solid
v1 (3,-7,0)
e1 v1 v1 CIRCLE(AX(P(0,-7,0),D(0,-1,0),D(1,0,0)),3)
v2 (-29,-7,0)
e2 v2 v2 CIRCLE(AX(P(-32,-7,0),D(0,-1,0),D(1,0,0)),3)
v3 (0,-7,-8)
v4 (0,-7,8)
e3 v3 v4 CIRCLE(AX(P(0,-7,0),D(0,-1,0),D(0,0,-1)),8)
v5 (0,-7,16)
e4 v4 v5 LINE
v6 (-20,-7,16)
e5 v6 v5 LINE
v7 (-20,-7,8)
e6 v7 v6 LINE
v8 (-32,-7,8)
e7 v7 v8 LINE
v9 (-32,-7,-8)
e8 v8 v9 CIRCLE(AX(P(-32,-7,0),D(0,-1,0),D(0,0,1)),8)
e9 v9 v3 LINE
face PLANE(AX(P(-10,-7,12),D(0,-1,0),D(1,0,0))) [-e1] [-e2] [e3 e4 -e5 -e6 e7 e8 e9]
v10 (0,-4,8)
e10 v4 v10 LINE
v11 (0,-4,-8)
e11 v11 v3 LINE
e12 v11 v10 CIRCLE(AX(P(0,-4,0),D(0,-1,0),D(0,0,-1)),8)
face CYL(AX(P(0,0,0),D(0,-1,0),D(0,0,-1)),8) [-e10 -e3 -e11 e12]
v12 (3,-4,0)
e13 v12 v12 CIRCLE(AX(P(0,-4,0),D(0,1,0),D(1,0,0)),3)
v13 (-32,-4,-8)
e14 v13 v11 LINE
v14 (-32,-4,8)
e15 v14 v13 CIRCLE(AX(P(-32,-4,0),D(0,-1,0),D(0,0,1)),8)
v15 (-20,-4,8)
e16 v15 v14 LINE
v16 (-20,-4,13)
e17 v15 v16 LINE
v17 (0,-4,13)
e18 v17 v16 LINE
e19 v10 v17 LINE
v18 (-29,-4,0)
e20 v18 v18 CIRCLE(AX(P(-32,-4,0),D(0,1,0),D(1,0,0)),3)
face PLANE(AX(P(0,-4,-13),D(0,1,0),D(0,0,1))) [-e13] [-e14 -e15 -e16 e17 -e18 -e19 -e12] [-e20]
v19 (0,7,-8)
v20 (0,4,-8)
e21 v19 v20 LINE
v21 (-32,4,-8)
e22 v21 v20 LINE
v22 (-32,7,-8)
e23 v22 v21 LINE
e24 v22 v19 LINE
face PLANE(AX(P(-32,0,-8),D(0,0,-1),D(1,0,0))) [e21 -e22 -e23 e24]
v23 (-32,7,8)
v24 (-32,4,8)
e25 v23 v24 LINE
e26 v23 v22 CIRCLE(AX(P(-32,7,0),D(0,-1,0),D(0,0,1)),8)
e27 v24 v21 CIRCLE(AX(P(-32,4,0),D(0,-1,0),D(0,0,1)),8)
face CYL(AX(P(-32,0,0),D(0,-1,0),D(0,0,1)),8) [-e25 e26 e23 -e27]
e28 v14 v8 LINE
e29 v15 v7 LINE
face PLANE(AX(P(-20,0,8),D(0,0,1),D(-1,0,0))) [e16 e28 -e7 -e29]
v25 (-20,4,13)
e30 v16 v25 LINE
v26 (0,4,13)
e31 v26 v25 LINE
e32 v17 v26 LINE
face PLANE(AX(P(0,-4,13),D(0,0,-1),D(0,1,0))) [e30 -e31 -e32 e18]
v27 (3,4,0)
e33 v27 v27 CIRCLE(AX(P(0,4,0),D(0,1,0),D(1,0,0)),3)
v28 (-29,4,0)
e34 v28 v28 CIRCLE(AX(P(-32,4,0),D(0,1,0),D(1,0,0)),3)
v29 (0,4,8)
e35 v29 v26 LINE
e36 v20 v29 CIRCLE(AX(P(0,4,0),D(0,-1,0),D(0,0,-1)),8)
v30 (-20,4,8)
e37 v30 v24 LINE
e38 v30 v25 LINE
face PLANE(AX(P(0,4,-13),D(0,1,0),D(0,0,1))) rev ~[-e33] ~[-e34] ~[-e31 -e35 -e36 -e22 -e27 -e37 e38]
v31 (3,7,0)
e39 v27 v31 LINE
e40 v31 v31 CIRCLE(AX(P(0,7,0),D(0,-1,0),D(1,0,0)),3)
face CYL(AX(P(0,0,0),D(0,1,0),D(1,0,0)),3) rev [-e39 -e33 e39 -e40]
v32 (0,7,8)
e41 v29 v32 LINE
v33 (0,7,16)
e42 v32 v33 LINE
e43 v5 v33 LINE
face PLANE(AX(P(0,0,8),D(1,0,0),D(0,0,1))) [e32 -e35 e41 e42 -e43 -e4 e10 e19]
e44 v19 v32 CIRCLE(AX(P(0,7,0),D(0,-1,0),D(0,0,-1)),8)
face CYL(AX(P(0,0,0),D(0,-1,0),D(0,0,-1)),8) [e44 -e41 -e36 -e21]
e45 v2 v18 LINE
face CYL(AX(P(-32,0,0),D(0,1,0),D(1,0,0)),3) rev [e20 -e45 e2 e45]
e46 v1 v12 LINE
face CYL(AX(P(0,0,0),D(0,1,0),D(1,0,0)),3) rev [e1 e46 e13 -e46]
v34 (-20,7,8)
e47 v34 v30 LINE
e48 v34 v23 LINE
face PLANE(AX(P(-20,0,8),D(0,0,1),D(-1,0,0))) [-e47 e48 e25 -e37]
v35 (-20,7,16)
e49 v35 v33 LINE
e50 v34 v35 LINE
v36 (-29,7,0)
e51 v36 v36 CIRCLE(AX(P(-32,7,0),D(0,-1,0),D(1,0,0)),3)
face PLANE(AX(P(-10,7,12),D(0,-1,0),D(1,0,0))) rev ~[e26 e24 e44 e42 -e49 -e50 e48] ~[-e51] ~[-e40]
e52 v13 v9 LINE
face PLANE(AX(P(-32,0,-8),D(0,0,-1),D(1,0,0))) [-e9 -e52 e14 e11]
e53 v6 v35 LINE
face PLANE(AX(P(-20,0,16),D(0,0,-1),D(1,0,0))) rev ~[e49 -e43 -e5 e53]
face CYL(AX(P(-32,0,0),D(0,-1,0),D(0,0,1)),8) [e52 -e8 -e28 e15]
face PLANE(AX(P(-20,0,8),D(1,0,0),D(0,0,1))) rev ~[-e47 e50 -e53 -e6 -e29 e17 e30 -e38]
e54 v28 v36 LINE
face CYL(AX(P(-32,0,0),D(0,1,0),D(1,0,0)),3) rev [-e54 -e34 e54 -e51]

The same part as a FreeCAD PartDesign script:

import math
import FreeCAD as App
import Part
import Sketcher

V = App.Vector
Q = App.Units.Quantity

doc = App.newDocument("Part")
body = doc.addObject("PartDesign::Body", "Body")

sketch1 = body.newObject("Sketcher::SketchObject", "Sketch")
sketch1.AttachmentSupport = (doc.getObject("XZ_Plane"), [""])
sketch1.MapMode = "FlatFace"
sketch1.addGeometry(Part.LineSegment(V(-20, 16, 0), V(-20, 8, 0)), False)
sketch1.addGeometry(Part.LineSegment(V(-20, 8, 0), V(-32, 8, 0)), False)
sketch1.addGeometry(Part.ArcOfCircle(Part.Circle(V(-32, 0, 0), V(0, 0, 1), 8), math.radians(90), math.radians(270)), False)
sketch1.addGeometry(Part.LineSegment(V(-32, -8, 0), V(0, -8, 0)), False)
sketch1.addGeometry(Part.ArcOfCircle(Part.Circle(V(0, 0, 0), V(0, 0, 1), 8), math.radians(-90), math.radians(90)), False)
sketch1.addGeometry(Part.LineSegment(V(0, 8, 0), V(0, 16, 0)), False)
sketch1.addGeometry(Part.LineSegment(V(0, 16, 0), V(-20, 16, 0)), False)
sketch1.addGeometry(Part.Circle(V(-32, 0, 0), V(0, 0, 1), 3), False)
sketch1.addGeometry(Part.Circle(V(0, 0, 0), V(0, 0, 1), 3), False)
sketch1.addConstraint(Sketcher.Constraint("Coincident", 0, 2, 1, 1))
sketch1.addConstraint(Sketcher.Constraint("Tangent", 1, 2, 2, 1))
sketch1.addConstraint(Sketcher.Constraint("Tangent", 2, 2, 3, 1))
sketch1.addConstraint(Sketcher.Constraint("Tangent", 3, 2, 4, 1))
sketch1.addConstraint(Sketcher.Constraint("Coincident", 4, 2, 5, 1))
sketch1.addConstraint(Sketcher.Constraint("Coincident", 5, 2, 6, 1))
sketch1.addConstraint(Sketcher.Constraint("Coincident", 6, 2, 0, 1))
sketch1.addConstraint(Sketcher.Constraint("Vertical", 0))
sketch1.addConstraint(Sketcher.Constraint("Horizontal", 1))
sketch1.addConstraint(Sketcher.Constraint("Horizontal", 3))
sketch1.addConstraint(Sketcher.Constraint("Vertical", 5))
sketch1.addConstraint(Sketcher.Constraint("Horizontal", 6))
sketch1.addConstraint(Sketcher.Constraint("Coincident", 4, 3, -1, 1))
sketch1.addConstraint(Sketcher.Constraint("Coincident", 8, 3, -1, 1))
sketch1.addConstraint(Sketcher.Constraint("Coincident", 7, 3, 2, 3))
sketch1.addConstraint(Sketcher.Constraint("Equal", 2, 4))
sketch1.addConstraint(Sketcher.Constraint("Equal", 7, 8))
sketch1.addConstraint(Sketcher.Constraint("PointOnObject", 4, 2, -2))
sketch1.addConstraint(Sketcher.Constraint("Diameter", 7, Q("6 mm")))
sketch1.addConstraint(Sketcher.Constraint("Radius", 2, Q("8 mm")))
sketch1.addConstraint(Sketcher.Constraint("DistanceX", 1, 2, 1, 1, Q("12 mm")))
sketch1.addConstraint(Sketcher.Constraint("DistanceX", 3, 1, 3, 2, Q("32 mm")))
sketch1.addConstraint(Sketcher.Constraint("DistanceY", 0, 2, 0, 1, Q("8 mm")))
pad1 = body.newObject("PartDesign::Pad", "Pad")
pad1.Profile = sketch1
pad1.Length = 14
pad1.Midplane = True

sketch2 = body.newObject("Sketcher::SketchObject", "Sketch001")
sketch2.AttachmentSupport = (doc.getObject("YZ_Plane"), [""])
sketch2.MapMode = "FlatFace"
sketch2.addGeometry(Part.LineSegment(V(-4, 13, 0), V(-4, -13, 0)), False)
sketch2.addGeometry(Part.LineSegment(V(-4, -13, 0), V(4, -13, 0)), False)
sketch2.addGeometry(Part.LineSegment(V(4, -13, 0), V(4, 13, 0)), False)
sketch2.addGeometry(Part.LineSegment(V(4, 13, 0), V(-4, 13, 0)), False)
sketch2.addConstraint(Sketcher.Constraint("Coincident", 0, 2, 1, 1))
sketch2.addConstraint(Sketcher.Constraint("Coincident", 1, 2, 2, 1))
sketch2.addConstraint(Sketcher.Constraint("Coincident", 2, 2, 3, 1))
sketch2.addConstraint(Sketcher.Constraint("Coincident", 3, 2, 0, 1))
sketch2.addConstraint(Sketcher.Constraint("Vertical", 0))
sketch2.addConstraint(Sketcher.Constraint("Horizontal", 1))
sketch2.addConstraint(Sketcher.Constraint("Vertical", 2))
sketch2.addConstraint(Sketcher.Constraint("Horizontal", 3))
sketch2.addConstraint(Sketcher.Constraint("Symmetric", 0, 2, 2, 2, -1, 1))
sketch2.addConstraint(Sketcher.Constraint("DistanceX", 1, 1, 1, 2, Q("8 mm")))
sketch2.addConstraint(Sketcher.Constraint("DistanceY", 0, 2, 0, 1, Q("26 mm")))
pocket1 = body.newObject("PartDesign::Pocket", "Pocket")
pocket1.Profile = sketch2
pocket1.Length = 151.69602
pocket1.Midplane = True

doc.recompute()
